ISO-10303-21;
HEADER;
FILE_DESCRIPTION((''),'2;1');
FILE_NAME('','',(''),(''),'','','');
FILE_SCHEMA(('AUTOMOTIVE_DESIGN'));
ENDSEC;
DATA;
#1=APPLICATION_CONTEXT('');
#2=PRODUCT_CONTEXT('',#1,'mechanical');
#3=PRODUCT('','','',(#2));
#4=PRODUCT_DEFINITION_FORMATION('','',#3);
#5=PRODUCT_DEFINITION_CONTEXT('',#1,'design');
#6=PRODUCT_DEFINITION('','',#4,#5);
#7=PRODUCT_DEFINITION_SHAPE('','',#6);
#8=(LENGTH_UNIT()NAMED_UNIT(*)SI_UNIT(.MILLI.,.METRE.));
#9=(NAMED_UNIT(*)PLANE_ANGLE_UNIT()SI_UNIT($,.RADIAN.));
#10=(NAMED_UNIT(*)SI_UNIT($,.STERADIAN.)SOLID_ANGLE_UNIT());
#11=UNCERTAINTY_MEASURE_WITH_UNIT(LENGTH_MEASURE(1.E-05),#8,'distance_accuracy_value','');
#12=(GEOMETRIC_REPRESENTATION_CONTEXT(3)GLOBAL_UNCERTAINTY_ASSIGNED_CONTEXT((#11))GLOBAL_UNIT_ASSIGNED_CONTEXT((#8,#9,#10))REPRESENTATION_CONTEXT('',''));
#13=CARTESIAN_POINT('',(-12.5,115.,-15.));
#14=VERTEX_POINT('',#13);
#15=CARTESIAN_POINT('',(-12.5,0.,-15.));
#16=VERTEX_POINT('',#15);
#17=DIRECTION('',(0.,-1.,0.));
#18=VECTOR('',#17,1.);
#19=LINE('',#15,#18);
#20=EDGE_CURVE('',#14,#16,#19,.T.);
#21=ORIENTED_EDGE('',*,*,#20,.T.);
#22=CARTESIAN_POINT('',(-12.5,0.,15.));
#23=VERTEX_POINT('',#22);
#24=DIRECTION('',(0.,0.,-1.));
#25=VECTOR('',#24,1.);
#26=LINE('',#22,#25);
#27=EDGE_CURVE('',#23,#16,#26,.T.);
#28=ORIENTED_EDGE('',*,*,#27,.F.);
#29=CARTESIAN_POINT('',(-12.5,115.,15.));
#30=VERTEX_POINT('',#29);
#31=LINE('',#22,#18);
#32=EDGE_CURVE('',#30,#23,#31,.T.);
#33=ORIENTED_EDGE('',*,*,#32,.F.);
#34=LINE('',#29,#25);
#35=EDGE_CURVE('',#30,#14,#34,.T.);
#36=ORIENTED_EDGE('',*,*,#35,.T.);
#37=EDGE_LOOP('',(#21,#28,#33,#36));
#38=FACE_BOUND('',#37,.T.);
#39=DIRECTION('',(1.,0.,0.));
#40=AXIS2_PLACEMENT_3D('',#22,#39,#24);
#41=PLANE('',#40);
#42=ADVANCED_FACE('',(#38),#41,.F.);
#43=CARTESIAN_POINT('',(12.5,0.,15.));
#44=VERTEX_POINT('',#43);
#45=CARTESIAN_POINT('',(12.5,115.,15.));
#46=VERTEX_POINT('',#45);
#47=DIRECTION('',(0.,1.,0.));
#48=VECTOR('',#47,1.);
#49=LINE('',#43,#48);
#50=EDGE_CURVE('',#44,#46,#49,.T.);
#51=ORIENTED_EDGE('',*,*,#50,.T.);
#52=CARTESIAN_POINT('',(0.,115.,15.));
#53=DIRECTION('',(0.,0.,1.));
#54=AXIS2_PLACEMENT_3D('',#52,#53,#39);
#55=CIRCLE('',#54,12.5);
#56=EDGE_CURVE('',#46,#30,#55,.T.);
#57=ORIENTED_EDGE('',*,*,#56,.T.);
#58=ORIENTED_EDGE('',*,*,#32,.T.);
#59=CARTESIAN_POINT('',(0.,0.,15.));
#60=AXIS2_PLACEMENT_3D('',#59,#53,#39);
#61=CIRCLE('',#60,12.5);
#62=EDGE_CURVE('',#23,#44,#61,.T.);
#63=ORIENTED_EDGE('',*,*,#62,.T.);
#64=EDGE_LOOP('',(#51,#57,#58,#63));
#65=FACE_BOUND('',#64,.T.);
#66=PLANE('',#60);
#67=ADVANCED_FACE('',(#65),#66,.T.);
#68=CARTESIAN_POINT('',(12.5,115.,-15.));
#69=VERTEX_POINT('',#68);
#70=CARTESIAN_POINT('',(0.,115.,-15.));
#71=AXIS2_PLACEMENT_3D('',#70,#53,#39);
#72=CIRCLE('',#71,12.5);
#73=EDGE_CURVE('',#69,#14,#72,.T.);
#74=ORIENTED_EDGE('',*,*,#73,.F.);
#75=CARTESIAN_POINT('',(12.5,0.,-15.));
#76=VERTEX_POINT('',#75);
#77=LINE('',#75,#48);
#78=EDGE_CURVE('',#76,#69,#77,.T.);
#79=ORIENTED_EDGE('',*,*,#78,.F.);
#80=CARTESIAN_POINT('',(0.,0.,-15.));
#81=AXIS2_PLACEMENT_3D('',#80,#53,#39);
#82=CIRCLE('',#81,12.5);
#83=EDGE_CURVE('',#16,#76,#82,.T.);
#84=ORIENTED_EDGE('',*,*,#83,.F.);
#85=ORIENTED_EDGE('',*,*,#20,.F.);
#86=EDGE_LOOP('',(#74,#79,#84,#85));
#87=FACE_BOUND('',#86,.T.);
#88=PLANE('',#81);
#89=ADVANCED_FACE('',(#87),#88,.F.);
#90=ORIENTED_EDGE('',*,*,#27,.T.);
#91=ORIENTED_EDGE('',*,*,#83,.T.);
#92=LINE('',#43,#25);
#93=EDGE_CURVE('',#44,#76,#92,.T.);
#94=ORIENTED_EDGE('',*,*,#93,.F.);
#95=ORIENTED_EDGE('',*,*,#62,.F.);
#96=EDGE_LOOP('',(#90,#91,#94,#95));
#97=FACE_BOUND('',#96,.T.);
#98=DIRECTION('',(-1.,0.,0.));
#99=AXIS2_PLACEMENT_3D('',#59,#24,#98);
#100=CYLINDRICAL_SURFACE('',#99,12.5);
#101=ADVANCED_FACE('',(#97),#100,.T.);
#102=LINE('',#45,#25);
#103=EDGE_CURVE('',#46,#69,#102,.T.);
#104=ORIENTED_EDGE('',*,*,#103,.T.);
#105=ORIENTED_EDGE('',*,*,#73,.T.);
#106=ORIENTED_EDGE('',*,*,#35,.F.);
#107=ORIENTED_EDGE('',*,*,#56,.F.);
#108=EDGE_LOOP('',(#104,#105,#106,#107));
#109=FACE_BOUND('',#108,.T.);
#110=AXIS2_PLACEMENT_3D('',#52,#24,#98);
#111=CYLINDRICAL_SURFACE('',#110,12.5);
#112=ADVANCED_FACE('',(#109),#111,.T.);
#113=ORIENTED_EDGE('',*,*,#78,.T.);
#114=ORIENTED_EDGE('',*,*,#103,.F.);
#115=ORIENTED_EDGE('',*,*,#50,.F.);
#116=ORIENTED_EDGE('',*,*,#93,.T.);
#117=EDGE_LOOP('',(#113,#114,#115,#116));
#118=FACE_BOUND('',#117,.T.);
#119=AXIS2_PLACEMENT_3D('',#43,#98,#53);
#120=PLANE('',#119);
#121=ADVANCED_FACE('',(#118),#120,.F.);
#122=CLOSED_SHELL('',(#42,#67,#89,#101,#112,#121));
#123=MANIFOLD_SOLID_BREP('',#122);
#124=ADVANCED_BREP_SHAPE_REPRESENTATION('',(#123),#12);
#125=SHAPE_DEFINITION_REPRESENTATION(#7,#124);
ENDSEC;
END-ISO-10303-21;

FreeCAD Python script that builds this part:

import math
import FreeCAD as App
import Part
import Sketcher
from FreeCAD import Vector
Q = App.Units.Quantity

doc = App.newDocument("Part")
body = doc.addObject("PartDesign::Body", "Body")

# Sketch on XY plane
sketch1 = doc.addObject("Sketcher::SketchObject", "Sketch")
body.addObject(sketch1)
sketch1.AttachmentSupport = (doc.XY_Plane, [""])
sketch1.MapMode = "FlatFace"
sketch1.addGeometry(Part.LineSegment(Vector(-12, 115, 0), Vector(-12, 0, 0)), False)
sketch1.addGeometry(Part.ArcOfCircle(Part.Circle(Vector(0, 0, 0), Vector(0, 0, 1), 12), math.radians(180), math.radians(360)), False)
sketch1.addGeometry(Part.LineSegment(Vector(12, 0, 0), Vector(12, 115, 0)), False)
sketch1.addGeometry(Part.ArcOfCircle(Part.Circle(Vector(0, 115, 0), Vector(0, 0, 1), 12), math.radians(0), math.radians(180)), False)
sketch1.addConstraint(Sketcher.Constraint("Tangent", 0, 2, 1, 1))
sketch1.addConstraint(Sketcher.Constraint("Tangent", 1, 2, 2, 1))
sketch1.addConstraint(Sketcher.Constraint("Tangent", 2, 2, 3, 1))
sketch1.addConstraint(Sketcher.Constraint("Tangent", 3, 2, 0, 1))
sketch1.addConstraint(Sketcher.Constraint("Vertical", 0))
sketch1.addConstraint(Sketcher.Constraint("Vertical", 2))
sketch1.addConstraint(Sketcher.Constraint("Coincident", 1, 3, -1, 1))
sketch1.addConstraint(Sketcher.Constraint("Radius", 1, Q("12.5 mm")))
sketch1.addConstraint(Sketcher.Constraint("DistanceY", 0, 2, 0, 1, Q("115 mm")))
pad1 = doc.addObject("PartDesign::Pad", "Pad")
body.addObject(pad1)
pad1.Profile = sketch1
pad1.Length = 30
pad1.Midplane = True

doc.recompute()
